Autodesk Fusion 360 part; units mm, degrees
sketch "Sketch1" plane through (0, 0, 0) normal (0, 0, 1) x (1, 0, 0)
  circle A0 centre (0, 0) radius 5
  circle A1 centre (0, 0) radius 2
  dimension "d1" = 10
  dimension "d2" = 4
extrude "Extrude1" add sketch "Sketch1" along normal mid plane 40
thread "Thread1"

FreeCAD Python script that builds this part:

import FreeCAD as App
import Part
import Sketcher

doc = App.newDocument("Part")
body = doc.addObject("PartDesign::Body", "Body")

# Sketch on XY plane
sketch1 = body.newObject("Sketcher::SketchObject", "Sketch")
sketch1.AttachmentSupport = (doc.getObject("XY_Plane"), [""])
sketch1.MapMode = "FlatFace"
sketch1.addGeometry([
    Part.Circle(App.Vector(0, 0, 0), App.Vector(0, 0, 1), 5),
    Part.Circle(App.Vector(0, 0, 0), App.Vector(0, 0, 1), 2),
], False)
sketch1.addConstraint([
    Sketcher.Constraint("Coincident", 0, 3, -1, 1),
    Sketcher.Constraint("Coincident", 1, 3, -1, 1),
    Sketcher.Constraint("Diameter", 0, 10.0),
    Sketcher.Constraint("Diameter", 1, 4.0),
])
pad1 = body.newObject("PartDesign::Pad", "Pad")
pad1.Profile = sketch1
pad1.Length = 40
pad1.Midplane = True

doc.recompute()
